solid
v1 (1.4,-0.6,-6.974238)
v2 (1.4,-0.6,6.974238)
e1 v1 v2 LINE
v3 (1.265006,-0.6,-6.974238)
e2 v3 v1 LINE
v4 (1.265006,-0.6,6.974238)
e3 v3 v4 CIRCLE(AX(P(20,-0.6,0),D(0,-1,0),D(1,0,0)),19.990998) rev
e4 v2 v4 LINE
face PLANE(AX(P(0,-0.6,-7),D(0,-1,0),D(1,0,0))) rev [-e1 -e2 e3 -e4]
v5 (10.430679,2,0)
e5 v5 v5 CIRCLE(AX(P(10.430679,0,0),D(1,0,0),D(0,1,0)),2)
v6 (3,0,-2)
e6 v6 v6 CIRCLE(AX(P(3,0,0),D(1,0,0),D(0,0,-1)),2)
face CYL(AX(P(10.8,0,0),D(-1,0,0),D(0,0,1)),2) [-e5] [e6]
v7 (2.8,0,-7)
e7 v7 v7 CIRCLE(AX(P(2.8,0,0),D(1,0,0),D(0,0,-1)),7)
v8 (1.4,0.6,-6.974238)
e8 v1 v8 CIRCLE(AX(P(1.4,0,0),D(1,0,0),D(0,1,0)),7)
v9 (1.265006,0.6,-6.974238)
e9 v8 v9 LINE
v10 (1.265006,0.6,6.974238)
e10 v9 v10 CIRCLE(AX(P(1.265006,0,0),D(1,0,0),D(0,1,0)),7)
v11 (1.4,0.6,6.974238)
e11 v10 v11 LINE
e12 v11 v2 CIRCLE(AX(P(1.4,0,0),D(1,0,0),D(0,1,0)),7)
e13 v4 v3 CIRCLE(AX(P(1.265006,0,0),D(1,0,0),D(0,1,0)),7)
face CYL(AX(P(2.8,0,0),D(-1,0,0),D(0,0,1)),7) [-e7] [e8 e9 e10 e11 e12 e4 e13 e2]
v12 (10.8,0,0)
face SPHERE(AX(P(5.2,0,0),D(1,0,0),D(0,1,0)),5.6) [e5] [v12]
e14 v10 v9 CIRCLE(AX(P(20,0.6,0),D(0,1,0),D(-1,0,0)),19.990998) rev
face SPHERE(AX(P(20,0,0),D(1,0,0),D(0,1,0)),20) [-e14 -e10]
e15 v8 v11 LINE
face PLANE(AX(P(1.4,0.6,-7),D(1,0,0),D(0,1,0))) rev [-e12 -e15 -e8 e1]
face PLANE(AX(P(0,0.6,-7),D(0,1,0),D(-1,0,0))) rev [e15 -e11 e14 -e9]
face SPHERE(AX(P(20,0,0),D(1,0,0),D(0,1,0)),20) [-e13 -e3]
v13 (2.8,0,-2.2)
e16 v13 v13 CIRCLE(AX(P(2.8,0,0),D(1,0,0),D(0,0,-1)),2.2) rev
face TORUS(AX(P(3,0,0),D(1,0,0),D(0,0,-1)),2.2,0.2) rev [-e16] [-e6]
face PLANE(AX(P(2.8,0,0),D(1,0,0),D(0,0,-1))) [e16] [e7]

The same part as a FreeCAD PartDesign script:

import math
import FreeCAD as App
import Part
import Sketcher
from FreeCAD import Vector
Q = App.Units.Quantity


def edges_at(feature, points):
    """Names of the edges that pass closest to the given points."""
    edges = feature.Shape.Edges
    near = lambda p: min(range(len(edges)), key=lambda i: edges[i].distToShape(Part.Vertex(*p))[0])
    return sorted({f"Edge{near(p) + 1}" for p in points})

doc = App.newDocument("Part")
body = doc.addObject("PartDesign::Body", "Body")

sketch1 = doc.addObject("Sketcher::SketchObject", "Sketch")
body.addObject(sketch1)
sketch1.AttachmentSupport = (doc.YZ_Plane, [""])
sketch1.MapMode = "FlatFace"
sketch1.addGeometry(Part.Circle(Vector(0, 0, 0), Vector(0, 0, 1), 7), False)
sketch1.addConstraint(Sketcher.Constraint("Coincident", 0, 3, -1, 1))
sketch1.addConstraint(Sketcher.Constraint("Diameter", 0, Q("14 mm")))
pad1 = doc.addObject("PartDesign::Pad", "Pad")
body.addObject(pad1)
pad1.Profile = sketch1
pad1.Length = 2.8

sketch2 = doc.addObject("Sketcher::SketchObject", "Sketch001")
body.addObject(sketch2)
sketch2.AttachmentSupport = (doc.YZ_Plane, [""])
sketch2.MapMode = "FlatFace"
sketch2.AttachmentOffset = App.Placement(Vector(0, 0, 2.8), App.Rotation())
sketch2.addGeometry(Part.Circle(Vector(0, 0, 0), Vector(0, 0, 1), 2), False)
sketch2.addConstraint(Sketcher.Constraint("Coincident", 0, 3, -1, 1))
sketch2.addConstraint(Sketcher.Constraint("Diameter", 0, Q("4 mm")))
pad2 = doc.addObject("PartDesign::Pad", "Pad001")
body.addObject(pad2)
pad2.Profile = sketch2
pad2.Length = 8

sketch3 = doc.addObject("Sketcher::SketchObject", "Sketch002")
body.addObject(sketch3)
sketch3.AttachmentSupport = (doc.XY_Plane, [""])
sketch3.MapMode = "FlatFace"
sketch3.addGeometry(Part.LineSegment(Vector(0, 0.6, 0), Vector(0, -0.6, 0)), False)
sketch3.addGeometry(Part.LineSegment(Vector(0, -0.6, 0), Vector(1.4, -0.6, 0)), False)
sketch3.addGeometry(Part.LineSegment(Vector(1.4, -0.6, 0), Vector(1.4, 0.6, 0)), False)
sketch3.addGeometry(Part.LineSegment(Vector(1.4, 0.6, 0), Vector(0, 0.6, 0)), False)
sketch3.addConstraint(Sketcher.Constraint("Coincident", 0, 2, 1, 1))
sketch3.addConstraint(Sketcher.Constraint("Coincident", 1, 2, 2, 1))
sketch3.addConstraint(Sketcher.Constraint("Coincident", 2, 2, 3, 1))
sketch3.addConstraint(Sketcher.Constraint("Coincident", 3, 2, 0, 1))
sketch3.addConstraint(Sketcher.Constraint("Vertical", 0))
sketch3.addConstraint(Sketcher.Constraint("Horizontal", 1))
sketch3.addConstraint(Sketcher.Constraint("Vertical", 2))
sketch3.addConstraint(Sketcher.Constraint("Horizontal", 3))
sketch3.addConstraint(Sketcher.Constraint("Symmetric", 0, 2, 3, 2, -1, 1))
sketch3.addConstraint(Sketcher.Constraint("DistanceX", 1, 1, 1, 2, Q("1.4 mm")))
sketch3.addConstraint(Sketcher.Constraint("DistanceY", 0, 2, 0, 1, Q("1.2 mm")))
pocket1 = doc.addObject("PartDesign::Pocket", "Pocket")
body.addObject(pocket1)
pocket1.Profile = sketch3
pocket1.Type = "ThroughAll"
pocket1.Midplane = True

sketch4 = doc.addObject("Sketcher::SketchObject", "Sketch003")
body.addObject(sketch4)
sketch4.AttachmentSupport = (doc.XY_Plane, [""])
sketch4.MapMode = "FlatFace"
sketch4.addGeometry(Part.LineSegment(Vector(12.8, 2, 0), Vector(10.4, 2, 0)), False)
sketch4.addGeometry(Part.ArcOfCircle(Part.Circle(Vector(5.2, 0, 0), Vector(0, 0, 1), 5.6), math.radians(0), math.radians(21)), False)
sketch4.addGeometry(Part.LineSegment(Vector(10.8, 0, 0), Vector(12.8, 0, 0)), False)
sketch4.addGeometry(Part.LineSegment(Vector(12.8, 0, 0), Vector(12.8, 2, 0)), False)
sketch4.addGeometry(Part.LineSegment(Vector(-2, 7, 0), Vector(-2, 0, 0)), False)
sketch4.addGeometry(Part.LineSegment(Vector(-2, 0, 0), Vector(0, 0, 0)), False)
sketch4.addGeometry(Part.ArcOfCircle(Part.Circle(Vector(20, 0, 0), Vector(0, 0, 1), 20), math.radians(160), math.radians(180)), False)
sketch4.addGeometry(Part.LineSegment(Vector(1.3, 7, 0), Vector(-2, 7, 0)), False)
sketch4.addConstraint(Sketcher.Constraint("Coincident", 0, 2, 1, 2))
sketch4.addConstraint(Sketcher.Constraint("Coincident", 1, 1, 2, 1))
sketch4.addConstraint(Sketcher.Constraint("Coincident", 2, 2, 3, 1))
sketch4.addConstraint(Sketcher.Constraint("Coincident", 3, 2, 0, 1))
sketch4.addConstraint(Sketcher.Constraint("Coincident", 4, 2, 5, 1))
sketch4.addConstraint(Sketcher.Constraint("Coincident", 5, 2, 6, 2))
sketch4.addConstraint(Sketcher.Constraint("Coincident", 6, 1, 7, 1))
sketch4.addConstraint(Sketcher.Constraint("Coincident", 7, 2, 4, 1))
sketch4.addConstraint(Sketcher.Constraint("Horizontal", 0))
sketch4.addConstraint(Sketcher.Constraint("Horizontal", 2))
sketch4.addConstraint(Sketcher.Constraint("Vertical", 3))
sketch4.addConstraint(Sketcher.Constraint("Vertical", 4))
sketch4.addConstraint(Sketcher.Constraint("Horizontal", 5))
sketch4.addConstraint(Sketcher.Constraint("Horizontal", 7))
sketch4.addConstraint(Sketcher.Constraint("Coincident", 5, 2, -1, 1))
sketch4.addConstraint(Sketcher.Constraint("PointOnObject", 1, 3, -1))
sketch4.addConstraint(Sketcher.Constraint("PointOnObject", 6, 3, -1))
sketch4.addConstraint(Sketcher.Constraint("PointOnObject", 1, 1, -1))
sketch4.addConstraint(Sketcher.Constraint("Equal", 2, 5))
sketch4.addConstraint(Sketcher.Constraint("Equal", 5, 3))
sketch4.addConstraint(Sketcher.Constraint("Radius", 6, Q("20 mm")))
sketch4.addConstraint(Sketcher.Constraint("Radius", 1, Q("5.6 mm")))
sketch4.addConstraint(Sketcher.Constraint("DistanceX", 2, 1, 2, 2, Q("2 mm")))
sketch4.addConstraint(Sketcher.Constraint("DistanceY", 4, 2, 4, 1, Q("7 mm")))
sketch4.addConstraint(Sketcher.Constraint("DistanceX", -1, 1, 1, 3, Q("5.2 mm")))
groove = doc.addObject("PartDesign::Groove", "Groove")
body.addObject(groove)
groove.Profile = sketch4
groove.ReferenceAxis = (sketch4, ["H_Axis"])
groove.Angle = 360
doc.recompute()

fillet = doc.addObject("PartDesign::Fillet", "Fillet")
body.addObject(fillet)
fillet.Base = (groove, edges_at(groove, [(2.8, 0, 2)]))
fillet.Radius = 0.2

doc.recompute()
